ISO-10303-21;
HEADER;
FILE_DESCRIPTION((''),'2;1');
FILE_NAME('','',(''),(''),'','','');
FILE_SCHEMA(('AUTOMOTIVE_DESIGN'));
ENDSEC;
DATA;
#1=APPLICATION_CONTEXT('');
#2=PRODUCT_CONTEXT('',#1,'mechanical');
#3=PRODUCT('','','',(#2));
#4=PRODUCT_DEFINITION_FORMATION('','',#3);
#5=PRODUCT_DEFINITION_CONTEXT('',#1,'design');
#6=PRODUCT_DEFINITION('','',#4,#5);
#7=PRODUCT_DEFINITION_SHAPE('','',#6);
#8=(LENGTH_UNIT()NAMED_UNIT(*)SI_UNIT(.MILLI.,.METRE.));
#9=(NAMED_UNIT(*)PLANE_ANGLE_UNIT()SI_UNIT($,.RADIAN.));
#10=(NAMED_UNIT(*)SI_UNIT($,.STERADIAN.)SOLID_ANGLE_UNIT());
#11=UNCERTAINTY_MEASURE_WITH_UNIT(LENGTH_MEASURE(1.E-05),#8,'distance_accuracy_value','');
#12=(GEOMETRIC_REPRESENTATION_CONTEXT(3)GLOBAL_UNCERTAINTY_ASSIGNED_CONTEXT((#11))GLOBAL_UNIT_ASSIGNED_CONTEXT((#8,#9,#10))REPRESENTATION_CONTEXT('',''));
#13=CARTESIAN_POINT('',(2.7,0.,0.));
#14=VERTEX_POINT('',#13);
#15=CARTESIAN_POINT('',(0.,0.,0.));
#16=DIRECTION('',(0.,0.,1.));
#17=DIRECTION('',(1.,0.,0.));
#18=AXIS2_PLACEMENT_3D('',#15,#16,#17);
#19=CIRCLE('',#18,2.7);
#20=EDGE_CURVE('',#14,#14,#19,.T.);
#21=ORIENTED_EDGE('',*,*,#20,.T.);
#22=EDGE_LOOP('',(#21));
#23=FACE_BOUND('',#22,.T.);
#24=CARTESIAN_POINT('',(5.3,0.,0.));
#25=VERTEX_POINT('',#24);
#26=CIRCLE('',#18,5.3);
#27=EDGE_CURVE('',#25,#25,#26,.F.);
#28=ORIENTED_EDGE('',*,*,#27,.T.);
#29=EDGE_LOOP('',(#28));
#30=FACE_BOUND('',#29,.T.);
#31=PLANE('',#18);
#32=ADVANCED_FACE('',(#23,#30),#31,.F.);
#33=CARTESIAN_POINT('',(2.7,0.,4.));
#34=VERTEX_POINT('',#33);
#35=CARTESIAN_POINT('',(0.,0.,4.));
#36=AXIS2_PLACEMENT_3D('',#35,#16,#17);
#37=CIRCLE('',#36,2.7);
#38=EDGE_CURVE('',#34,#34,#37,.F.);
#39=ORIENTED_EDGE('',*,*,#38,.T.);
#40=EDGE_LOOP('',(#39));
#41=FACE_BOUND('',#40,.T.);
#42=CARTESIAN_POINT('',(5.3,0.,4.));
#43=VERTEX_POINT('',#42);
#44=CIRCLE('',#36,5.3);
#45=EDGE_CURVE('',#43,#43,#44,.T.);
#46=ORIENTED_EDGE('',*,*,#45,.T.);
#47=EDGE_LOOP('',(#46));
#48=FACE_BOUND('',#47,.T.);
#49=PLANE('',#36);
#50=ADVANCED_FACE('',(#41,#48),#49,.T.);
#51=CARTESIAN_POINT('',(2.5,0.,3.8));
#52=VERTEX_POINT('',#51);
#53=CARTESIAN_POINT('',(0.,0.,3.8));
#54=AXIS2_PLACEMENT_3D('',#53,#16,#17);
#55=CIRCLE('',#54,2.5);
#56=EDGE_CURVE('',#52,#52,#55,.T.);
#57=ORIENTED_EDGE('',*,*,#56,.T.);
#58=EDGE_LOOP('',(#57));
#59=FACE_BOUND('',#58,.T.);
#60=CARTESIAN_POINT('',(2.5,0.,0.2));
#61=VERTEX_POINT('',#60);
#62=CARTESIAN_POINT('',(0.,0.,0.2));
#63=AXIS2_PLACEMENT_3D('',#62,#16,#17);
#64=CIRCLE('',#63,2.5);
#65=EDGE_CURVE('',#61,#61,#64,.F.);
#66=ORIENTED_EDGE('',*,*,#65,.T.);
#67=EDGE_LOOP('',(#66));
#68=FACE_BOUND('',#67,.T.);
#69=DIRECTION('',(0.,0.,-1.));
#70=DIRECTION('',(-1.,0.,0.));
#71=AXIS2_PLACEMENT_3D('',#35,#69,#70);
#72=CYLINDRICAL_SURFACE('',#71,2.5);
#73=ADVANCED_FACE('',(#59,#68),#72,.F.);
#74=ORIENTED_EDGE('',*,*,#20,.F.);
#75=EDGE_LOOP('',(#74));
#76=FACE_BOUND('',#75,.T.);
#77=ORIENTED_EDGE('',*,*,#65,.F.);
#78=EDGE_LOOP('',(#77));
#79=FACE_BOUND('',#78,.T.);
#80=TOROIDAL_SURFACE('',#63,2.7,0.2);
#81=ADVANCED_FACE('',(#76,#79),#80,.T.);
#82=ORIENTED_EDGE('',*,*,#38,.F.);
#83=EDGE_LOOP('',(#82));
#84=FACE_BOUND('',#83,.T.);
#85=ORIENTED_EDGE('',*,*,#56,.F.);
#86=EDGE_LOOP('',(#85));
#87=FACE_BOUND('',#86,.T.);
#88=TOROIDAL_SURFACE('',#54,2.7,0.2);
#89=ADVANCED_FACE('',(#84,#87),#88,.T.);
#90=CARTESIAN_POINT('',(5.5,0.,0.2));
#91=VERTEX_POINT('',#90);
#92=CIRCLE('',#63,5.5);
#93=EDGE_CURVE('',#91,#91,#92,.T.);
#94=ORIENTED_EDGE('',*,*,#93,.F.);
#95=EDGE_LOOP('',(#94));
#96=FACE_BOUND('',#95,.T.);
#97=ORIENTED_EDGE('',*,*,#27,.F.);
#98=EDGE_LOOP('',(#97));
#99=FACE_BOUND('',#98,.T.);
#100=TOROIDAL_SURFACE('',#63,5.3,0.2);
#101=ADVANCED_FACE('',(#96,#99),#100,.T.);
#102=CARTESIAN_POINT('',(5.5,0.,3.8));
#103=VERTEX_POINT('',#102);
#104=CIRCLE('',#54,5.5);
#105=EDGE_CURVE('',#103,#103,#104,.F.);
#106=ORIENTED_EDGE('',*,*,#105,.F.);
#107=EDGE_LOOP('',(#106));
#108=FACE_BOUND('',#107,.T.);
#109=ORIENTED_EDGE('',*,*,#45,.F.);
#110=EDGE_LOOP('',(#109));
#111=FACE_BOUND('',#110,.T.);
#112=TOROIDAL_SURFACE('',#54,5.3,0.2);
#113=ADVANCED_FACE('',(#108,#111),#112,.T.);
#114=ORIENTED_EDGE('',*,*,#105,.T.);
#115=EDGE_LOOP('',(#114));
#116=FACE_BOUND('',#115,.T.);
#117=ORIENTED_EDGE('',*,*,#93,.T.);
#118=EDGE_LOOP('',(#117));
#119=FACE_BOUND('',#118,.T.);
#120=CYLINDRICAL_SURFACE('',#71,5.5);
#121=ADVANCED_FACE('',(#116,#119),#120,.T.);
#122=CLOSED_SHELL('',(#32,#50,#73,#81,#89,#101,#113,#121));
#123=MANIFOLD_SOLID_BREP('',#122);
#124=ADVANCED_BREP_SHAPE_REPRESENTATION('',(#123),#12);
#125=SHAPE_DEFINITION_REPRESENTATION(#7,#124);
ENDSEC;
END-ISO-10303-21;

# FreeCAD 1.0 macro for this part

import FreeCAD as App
import Part
import Sketcher

V = App.Vector
Q = App.Units.Quantity


def edges_at(feature, points):
    """Names of the edges that pass closest to the given points."""
    edges = feature.Shape.Edges
    near = lambda p: min(range(len(edges)), key=lambda i: edges[i].distToShape(Part.Vertex(*p))[0])
    return sorted({f"Edge{near(p) + 1}" for p in points})

doc = App.newDocument("Part")
body = doc.addObject("PartDesign::Body", "Body")

# Sketch on XY plane
sketch1 = body.newObject("Sketcher::SketchObject", "Sketch")
sketch1.AttachmentSupport = (doc.getObject("XY_Plane"), [""])
sketch1.MapMode = "FlatFace"
sketch1.addGeometry([
    Part.Circle(V(0, 0, 0), V(0, 0, 1), 5.5),
    Part.Circle(V(0, 0, 0), V(0, 0, 1), 2.5),
], False)
sketch1.addConstraint([
    Sketcher.Constraint("Coincident", 0, 3, -1, 1),
    Sketcher.Constraint("Coincident", 1, 3, -1, 1),
    Sketcher.Constraint("Diameter", 0, Q("11 mm")),
    Sketcher.Constraint("Diameter", 1, Q("5 mm")),
])
pad1 = body.newObject("PartDesign::Pad", "Pad")
pad1.Profile = sketch1
pad1.Length = 4
doc.recompute()

fillet = body.newObject("PartDesign::Fillet", "Fillet")
fillet.Base = (pad1, edges_at(pad1, [
    (-5.5, 0, 0),
    (-5.5, 0, 4),
    (-2.5, 0, 0),
    (-2.5, 0, 4),
]))
fillet.Radius = 0.2

doc.recompute()
